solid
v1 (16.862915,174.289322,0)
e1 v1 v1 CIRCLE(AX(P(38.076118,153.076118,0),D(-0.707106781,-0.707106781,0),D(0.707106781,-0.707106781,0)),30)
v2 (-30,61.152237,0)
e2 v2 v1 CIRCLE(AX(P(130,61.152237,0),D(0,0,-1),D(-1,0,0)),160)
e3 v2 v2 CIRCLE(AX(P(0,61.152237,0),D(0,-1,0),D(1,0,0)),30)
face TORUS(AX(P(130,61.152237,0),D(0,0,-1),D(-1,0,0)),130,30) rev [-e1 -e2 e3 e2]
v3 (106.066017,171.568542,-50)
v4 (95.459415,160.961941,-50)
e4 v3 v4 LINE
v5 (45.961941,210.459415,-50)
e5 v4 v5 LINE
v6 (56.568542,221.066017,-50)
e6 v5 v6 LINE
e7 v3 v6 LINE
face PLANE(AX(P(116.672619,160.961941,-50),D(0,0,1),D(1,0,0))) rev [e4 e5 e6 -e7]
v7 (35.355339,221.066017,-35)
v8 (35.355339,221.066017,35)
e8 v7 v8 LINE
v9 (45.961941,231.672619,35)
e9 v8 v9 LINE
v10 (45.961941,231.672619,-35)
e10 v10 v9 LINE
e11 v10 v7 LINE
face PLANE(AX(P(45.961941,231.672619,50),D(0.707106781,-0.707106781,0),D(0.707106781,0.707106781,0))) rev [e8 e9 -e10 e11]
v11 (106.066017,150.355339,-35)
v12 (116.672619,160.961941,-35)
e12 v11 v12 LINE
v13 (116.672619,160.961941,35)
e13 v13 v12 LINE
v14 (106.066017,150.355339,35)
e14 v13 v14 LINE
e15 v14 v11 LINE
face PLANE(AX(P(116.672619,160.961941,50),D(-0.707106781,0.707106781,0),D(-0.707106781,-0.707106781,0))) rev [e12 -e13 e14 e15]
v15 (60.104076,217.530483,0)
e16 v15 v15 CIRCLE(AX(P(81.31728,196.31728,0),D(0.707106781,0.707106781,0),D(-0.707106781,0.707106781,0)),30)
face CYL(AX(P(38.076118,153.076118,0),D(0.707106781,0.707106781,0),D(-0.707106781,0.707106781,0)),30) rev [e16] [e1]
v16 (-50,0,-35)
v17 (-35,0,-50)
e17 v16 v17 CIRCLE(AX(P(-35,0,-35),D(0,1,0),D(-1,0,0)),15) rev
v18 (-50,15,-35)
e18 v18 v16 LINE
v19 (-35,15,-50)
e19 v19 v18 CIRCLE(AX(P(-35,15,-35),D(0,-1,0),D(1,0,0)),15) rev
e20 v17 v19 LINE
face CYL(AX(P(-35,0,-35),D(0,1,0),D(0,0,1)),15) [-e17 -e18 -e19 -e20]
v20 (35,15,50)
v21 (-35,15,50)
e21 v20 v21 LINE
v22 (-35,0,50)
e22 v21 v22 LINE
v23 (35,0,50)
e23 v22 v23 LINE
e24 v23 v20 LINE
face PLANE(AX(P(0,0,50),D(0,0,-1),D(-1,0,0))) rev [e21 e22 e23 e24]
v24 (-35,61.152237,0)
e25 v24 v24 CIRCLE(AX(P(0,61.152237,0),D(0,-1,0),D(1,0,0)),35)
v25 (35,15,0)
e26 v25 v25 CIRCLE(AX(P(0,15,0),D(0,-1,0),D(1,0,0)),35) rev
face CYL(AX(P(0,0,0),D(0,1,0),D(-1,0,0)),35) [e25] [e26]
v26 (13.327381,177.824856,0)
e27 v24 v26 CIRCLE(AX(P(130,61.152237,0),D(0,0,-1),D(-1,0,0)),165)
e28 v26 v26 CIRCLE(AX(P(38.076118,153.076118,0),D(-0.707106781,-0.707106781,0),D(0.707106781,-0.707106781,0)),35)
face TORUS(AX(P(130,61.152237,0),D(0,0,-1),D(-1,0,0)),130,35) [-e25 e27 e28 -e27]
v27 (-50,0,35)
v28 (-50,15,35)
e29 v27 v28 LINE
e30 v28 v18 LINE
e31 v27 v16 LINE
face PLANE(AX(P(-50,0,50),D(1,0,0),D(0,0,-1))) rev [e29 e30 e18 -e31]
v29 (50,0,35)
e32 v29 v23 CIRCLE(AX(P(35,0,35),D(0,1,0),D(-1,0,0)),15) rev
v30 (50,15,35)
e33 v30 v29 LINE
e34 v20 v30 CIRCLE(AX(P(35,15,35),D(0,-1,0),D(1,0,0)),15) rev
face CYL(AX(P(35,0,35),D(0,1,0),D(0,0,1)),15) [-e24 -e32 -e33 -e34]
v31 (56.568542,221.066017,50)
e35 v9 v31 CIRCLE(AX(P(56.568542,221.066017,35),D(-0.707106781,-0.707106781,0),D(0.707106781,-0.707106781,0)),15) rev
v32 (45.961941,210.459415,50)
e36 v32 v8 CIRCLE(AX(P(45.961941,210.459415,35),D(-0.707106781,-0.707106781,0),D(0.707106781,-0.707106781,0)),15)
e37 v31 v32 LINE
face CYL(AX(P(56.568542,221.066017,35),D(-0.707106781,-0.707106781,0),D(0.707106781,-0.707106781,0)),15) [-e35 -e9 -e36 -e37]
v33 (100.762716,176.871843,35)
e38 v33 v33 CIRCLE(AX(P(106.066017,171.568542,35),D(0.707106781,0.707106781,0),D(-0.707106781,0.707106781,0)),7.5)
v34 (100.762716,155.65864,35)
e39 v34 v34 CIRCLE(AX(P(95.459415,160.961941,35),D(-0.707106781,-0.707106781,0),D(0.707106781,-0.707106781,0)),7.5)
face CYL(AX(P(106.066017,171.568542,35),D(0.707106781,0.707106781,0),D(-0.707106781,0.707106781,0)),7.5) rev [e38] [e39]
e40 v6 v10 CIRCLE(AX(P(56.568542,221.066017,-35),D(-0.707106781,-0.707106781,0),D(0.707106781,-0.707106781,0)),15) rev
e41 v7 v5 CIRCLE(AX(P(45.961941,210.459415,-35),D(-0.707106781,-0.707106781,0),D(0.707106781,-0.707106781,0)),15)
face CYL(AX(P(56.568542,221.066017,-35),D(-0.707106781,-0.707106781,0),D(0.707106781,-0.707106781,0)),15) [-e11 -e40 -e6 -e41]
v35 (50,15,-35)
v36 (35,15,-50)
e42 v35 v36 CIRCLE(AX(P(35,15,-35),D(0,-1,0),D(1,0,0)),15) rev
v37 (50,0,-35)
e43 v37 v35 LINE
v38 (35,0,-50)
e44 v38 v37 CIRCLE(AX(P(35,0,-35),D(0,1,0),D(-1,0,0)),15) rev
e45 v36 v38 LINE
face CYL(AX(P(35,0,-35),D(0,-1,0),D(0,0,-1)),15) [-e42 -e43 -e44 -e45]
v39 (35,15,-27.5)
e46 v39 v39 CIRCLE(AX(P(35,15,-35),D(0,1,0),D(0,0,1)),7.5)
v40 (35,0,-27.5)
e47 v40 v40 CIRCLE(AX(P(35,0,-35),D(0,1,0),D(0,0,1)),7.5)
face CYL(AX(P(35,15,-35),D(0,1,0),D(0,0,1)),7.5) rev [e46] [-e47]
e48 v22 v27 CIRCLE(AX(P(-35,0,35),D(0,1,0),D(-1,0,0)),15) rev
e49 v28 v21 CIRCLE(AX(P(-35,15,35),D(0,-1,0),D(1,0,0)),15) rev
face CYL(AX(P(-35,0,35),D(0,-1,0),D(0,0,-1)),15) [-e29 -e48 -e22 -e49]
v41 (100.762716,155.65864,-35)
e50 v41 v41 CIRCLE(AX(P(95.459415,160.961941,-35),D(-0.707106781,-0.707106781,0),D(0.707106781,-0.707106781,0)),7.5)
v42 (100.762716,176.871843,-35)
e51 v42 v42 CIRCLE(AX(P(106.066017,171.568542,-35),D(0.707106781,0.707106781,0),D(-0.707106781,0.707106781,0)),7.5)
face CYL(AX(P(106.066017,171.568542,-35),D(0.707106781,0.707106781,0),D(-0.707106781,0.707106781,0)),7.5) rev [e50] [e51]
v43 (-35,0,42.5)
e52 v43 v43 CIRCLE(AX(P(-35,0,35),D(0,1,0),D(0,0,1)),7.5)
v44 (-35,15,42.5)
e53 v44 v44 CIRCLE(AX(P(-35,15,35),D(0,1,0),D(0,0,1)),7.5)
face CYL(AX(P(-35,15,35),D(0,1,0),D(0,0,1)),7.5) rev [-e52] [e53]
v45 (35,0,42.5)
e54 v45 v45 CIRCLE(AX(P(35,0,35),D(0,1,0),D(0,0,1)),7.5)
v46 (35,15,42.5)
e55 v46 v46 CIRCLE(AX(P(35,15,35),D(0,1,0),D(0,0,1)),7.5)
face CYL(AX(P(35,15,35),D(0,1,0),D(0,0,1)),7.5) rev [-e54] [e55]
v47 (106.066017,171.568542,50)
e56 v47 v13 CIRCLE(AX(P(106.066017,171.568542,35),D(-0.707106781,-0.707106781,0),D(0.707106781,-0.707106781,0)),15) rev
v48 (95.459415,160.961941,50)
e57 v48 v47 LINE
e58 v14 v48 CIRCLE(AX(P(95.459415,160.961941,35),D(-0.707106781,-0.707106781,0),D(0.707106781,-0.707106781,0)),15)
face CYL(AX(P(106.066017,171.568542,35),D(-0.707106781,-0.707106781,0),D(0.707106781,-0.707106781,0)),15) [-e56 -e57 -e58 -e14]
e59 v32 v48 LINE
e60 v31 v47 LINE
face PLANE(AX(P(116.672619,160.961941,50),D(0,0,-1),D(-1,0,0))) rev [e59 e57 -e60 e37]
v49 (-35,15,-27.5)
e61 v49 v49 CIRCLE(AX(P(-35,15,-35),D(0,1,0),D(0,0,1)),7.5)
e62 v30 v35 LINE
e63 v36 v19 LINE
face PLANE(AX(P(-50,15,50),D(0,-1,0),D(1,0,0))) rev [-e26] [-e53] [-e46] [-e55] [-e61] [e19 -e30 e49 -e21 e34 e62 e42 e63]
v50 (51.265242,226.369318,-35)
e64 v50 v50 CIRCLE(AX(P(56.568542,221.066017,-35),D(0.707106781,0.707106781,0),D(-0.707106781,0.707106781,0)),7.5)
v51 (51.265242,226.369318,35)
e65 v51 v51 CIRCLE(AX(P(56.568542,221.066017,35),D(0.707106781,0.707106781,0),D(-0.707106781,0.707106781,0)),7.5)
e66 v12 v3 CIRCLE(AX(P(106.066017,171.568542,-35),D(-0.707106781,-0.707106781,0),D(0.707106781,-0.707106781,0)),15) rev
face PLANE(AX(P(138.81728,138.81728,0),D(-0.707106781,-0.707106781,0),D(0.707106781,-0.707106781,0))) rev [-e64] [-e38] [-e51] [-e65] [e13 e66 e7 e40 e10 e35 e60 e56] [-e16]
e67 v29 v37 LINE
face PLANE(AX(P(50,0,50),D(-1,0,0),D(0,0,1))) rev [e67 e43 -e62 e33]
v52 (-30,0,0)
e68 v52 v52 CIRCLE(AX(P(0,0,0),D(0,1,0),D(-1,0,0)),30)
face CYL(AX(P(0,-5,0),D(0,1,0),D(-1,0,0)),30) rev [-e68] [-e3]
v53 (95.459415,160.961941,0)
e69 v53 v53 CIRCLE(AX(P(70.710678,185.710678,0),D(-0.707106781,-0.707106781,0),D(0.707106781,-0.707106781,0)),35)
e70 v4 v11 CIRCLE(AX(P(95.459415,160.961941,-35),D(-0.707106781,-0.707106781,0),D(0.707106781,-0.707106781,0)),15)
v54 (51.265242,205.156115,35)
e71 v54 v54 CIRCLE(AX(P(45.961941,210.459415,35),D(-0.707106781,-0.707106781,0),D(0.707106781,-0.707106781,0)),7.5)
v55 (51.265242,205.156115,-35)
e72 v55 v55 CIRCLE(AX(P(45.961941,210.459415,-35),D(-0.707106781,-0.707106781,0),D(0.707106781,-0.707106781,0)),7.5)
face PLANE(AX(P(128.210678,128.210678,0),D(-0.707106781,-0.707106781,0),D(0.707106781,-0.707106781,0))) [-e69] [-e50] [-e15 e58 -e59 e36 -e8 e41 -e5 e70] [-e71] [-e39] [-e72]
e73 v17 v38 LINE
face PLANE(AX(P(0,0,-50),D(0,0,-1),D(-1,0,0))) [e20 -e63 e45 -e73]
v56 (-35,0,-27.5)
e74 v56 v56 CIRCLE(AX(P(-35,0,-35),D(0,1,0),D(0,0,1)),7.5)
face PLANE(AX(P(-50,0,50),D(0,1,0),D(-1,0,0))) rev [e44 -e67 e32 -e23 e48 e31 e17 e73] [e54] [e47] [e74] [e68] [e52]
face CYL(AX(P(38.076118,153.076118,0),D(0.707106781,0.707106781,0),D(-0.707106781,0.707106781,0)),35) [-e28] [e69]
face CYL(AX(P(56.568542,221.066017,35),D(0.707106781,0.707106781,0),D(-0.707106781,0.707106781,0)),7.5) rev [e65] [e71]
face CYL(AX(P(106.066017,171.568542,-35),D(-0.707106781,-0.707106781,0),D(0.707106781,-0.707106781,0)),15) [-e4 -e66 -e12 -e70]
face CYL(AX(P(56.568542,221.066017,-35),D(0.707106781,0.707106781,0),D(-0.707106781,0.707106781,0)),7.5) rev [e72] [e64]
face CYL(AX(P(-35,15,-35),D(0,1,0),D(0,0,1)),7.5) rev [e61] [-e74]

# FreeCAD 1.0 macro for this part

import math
import FreeCAD as App
import Part
import Sketcher

V = App.Vector
Q = App.Units.Quantity


def edges_at(feature, points):
    """Names of the edges that pass closest to the given points."""
    edges = feature.Shape.Edges
    near = lambda p: min(range(len(edges)), key=lambda i: edges[i].distToShape(Part.Vertex(*p))[0])
    return sorted({f"Edge{near(p) + 1}" for p in points})


def add_polygon(sketch, points):
    """Adds a closed chain of lines whose ends are joined by coincident constraints."""
    first, n = sketch.GeometryCount, len(points)
    for a, b in zip(points, points[1:] + points[:1]):
        sketch.addGeometry(Part.LineSegment(App.Vector(*a, 0), App.Vector(*b, 0)), False)
    for i in range(n):
        sketch.addConstraint(Sketcher.Constraint("Coincident", first + i, 2, first + (i + 1) % n, 1))

doc = App.newDocument("Part")
body = doc.addObject("PartDesign::Body", "Body")

# Sketch on XY plane
sketch1 = body.newObject("Sketcher::SketchObject", "Sketch")
sketch1.AttachmentSupport = (doc.getObject("XY_Plane"), [""])
sketch1.MapMode = "FlatFace"
add_polygon(sketch1, [(-50, 15), (-50, 0), (50, 0), (50, 15)])  # lines 0-3
sketch1.addConstraint(Sketcher.Constraint("Vertical", 0))
sketch1.addConstraint(Sketcher.Constraint("Horizontal", 1))
sketch1.addConstraint(Sketcher.Constraint("Vertical", 2))
sketch1.addConstraint(Sketcher.Constraint("Horizontal", 3))
sketch1.addConstraint(Sketcher.Constraint("Symmetric", 0, 2, 1, 2, -1, 1))
sketch1.addConstraint(Sketcher.Constraint("DistanceX", 1, 1, 1, 2, 100.0))
sketch1.addConstraint(Sketcher.Constraint("DistanceY", 0, 2, 0, 1, 15.0))
pad1 = body.newObject("PartDesign::Pad", "Pad")
pad1.Profile = sketch1
pad1.Length = 100
pad1.Midplane = True

# Sketch on XZ plane
sketch2 = body.newObject("Sketcher::SketchObject", "Sketch001")
sketch2.AttachmentSupport = (doc.getObject("XZ_Plane"), [""])
sketch2.MapMode = "FlatFace"
sketch2.AttachmentOffset = App.Placement(V(0, 0, -15), App.Rotation())
sketch2.addGeometry(Part.Circle(V(0, 0, 0), V(0, 0, 1), 30), False)
sketch2.addConstraint(Sketcher.Constraint("Coincident", 0, 3, -1, 1))
sketch2.addConstraint(Sketcher.Constraint("Diameter", 0, 60.0))
pocket1 = body.newObject("PartDesign::Pocket", "Pocket")
pocket1.Profile = sketch2
pocket1.Length = 15
pocket1.Reversed = True

# Sketch on XZ plane
sketch3 = body.newObject("Sketcher::SketchObject", "Sketch002")
sketch3.AttachmentSupport = (doc.getObject("XZ_Plane"), [""])
sketch3.MapMode = "FlatFace"
sketch3.addGeometry(Part.Circle(V(0, 0, 0), V(0, 0, 1), 35), False)
sketch3.addConstraint(Sketcher.Constraint("Coincident", 0, 3, -1, 1))
sketch3.addConstraint(Sketcher.Constraint("Diameter", 0, 70.0))

# Sketch on XY plane
sketch4 = body.newObject("Sketcher::SketchObject", "Sketch003")
sketch4.AttachmentSupport = (doc.getObject("XY_Plane"), [""])
sketch4.MapMode = "FlatFace"
sketch4.addGeometry(Part.LineSegment(V(0, 0, 0), V(0, 61.152237, 0)), False)
sketch4.addGeometry(Part.ArcOfCircle(Part.Circle(V(130, 61.152237, 0), V(0, 0, 1), 130), math.radians(135), math.radians(180)), False)
sketch4.addGeometry(Part.LineSegment(V(38.076118, 153.076118, 0), V(70.710678, 185.710678, 0)), False)
sketch4.addConstraint(Sketcher.Constraint("Tangent", 0, 2, 1, 2))
sketch4.addConstraint(Sketcher.Constraint("Tangent", 1, 1, 2, 1))
sketch4.addConstraint(Sketcher.Constraint("Vertical", 0))
sketch4.addConstraint(Sketcher.Constraint("Coincident", 0, 1, -1, 1))
sketch4.addConstraint(Sketcher.Constraint("Radius", 1, 130.0))
sketch4.addConstraint(Sketcher.Constraint("Angle", 2, Q("45 deg")))
sketch4.addConstraint(Sketcher.Constraint("DistanceY", 0, 1, 0, 2, 61.152237))
sketch4.addConstraint(Sketcher.Constraint("DistanceX", -1, 1, 2, 2, 70.710678))
doc.recompute()

additivepipe = body.newObject("PartDesign::AdditivePipe", "AdditivePipe")
additivepipe.Profile = sketch3
additivepipe.Spine = (sketch4, ["Edge1", "Edge2", "Edge3"])

# Sketch on XZ plane
sketch5 = body.newObject("Sketcher::SketchObject", "Sketch004")
sketch5.AttachmentSupport = (doc.getObject("XZ_Plane"), [""])
sketch5.MapMode = "FlatFace"
sketch5.addGeometry(Part.Circle(V(0, 0, 0), V(0, 0, 1), 30), False)
sketch5.addConstraint(Sketcher.Constraint("Coincident", 0, 3, -1, 1))
sketch5.addConstraint(Sketcher.Constraint("Diameter", 0, 60.0))

# Sketch on XY plane
sketch6 = body.newObject("Sketcher::SketchObject", "Sketch005")
sketch6.AttachmentSupport = (doc.getObject("XY_Plane"), [""])
sketch6.MapMode = "FlatFace"
sketch6.addGeometry(Part.LineSegment(V(0, 0, 0), V(0, 61.152237, 0)), False)
sketch6.addGeometry(Part.ArcOfCircle(Part.Circle(V(130, 61.152237, 0), V(0, 0, 1), 130), math.radians(135), math.radians(180)), False)
sketch6.addGeometry(Part.LineSegment(V(38.076118, 153.076118, 0), V(70.710678, 185.710678, 0)), False)
sketch6.addConstraint(Sketcher.Constraint("Tangent", 0, 2, 1, 2))
sketch6.addConstraint(Sketcher.Constraint("Tangent", 1, 1, 2, 1))
sketch6.addConstraint(Sketcher.Constraint("Vertical", 0))
sketch6.addConstraint(Sketcher.Constraint("Coincident", 0, 1, -1, 1))
sketch6.addConstraint(Sketcher.Constraint("Radius", 1, 130.0))
sketch6.addConstraint(Sketcher.Constraint("Angle", 2, Q("45 deg")))
sketch6.addConstraint(Sketcher.Constraint("DistanceY", 0, 1, 0, 2, 61.152237))
sketch6.addConstraint(Sketcher.Constraint("DistanceX", -1, 1, 2, 2, 70.710678))
doc.recompute()

subtractivepipe = body.newObject("PartDesign::SubtractivePipe", "SubtractivePipe")
subtractivepipe.Profile = sketch5
subtractivepipe.Spine = (sketch6, ["Edge1", "Edge2", "Edge3"])
doc.recompute()

fillet = body.newObject("PartDesign::Fillet", "Fillet")
fillet.Base = (subtractivepipe, edges_at(subtractivepipe, [
    (50, 7.5, 50),
    (-50, 7.5, 50),
    (50, 7.5, -50),
    (-50, 7.5, -50),
]))
fillet.Radius = 15

# Sketch on XZ plane
sketch7 = body.newObject("Sketcher::SketchObject", "Sketch006")
sketch7.AttachmentSupport = (doc.getObject("XZ_Plane"), [""])
sketch7.MapMode = "FlatFace"
sketch7.AttachmentOffset = App.Placement(V(0, 0, -15), App.Rotation())
sketch7.addGeometry(Part.Circle(V(-35, -35, 0), V(0, 0, 1), 7.5), False)
sketch7.addGeometry(Part.Circle(V(-35, 35, 0), V(0, 0, 1), 7.5), False)
sketch7.addGeometry(Part.Circle(V(35, -35, 0), V(0, 0, 1), 7.5), False)
sketch7.addGeometry(Part.Circle(V(35, 35, 0), V(0, 0, 1), 7.5), False)
sketch7.addConstraint(Sketcher.Constraint("Equal", 0, 1))
sketch7.addConstraint(Sketcher.Constraint("Equal", 1, 2))
sketch7.addConstraint(Sketcher.Constraint("Equal", 2, 3))
sketch7.addConstraint(Sketcher.Constraint("Symmetric", 1, 3, 2, 3, -1, 1))
sketch7.addConstraint(Sketcher.Constraint("Symmetric", 0, 3, 3, 3, -1, 1))
sketch7.addConstraint(Sketcher.Constraint("Symmetric", 0, 3, 2, 3, -2))
sketch7.addConstraint(Sketcher.Constraint("Diameter", 0, 15.0))
sketch7.addConstraint(Sketcher.Constraint("DistanceX", 0, 3, -1, 1, 35.0))
sketch7.addConstraint(Sketcher.Constraint("DistanceY", 0, 3, -1, 1, 35.0))
doc.recompute()
hole = body.newObject("PartDesign::Hole", "Hole")
hole.Profile = sketch7
hole.ThreadType = "None"
hole.Diameter = 15
hole.DepthType = "Dimension"
hole.Depth = 15
hole.DrillPoint = "Flat"
hole.Reversed = True

# Sketch on an angled plane
sketch8 = body.newObject("Sketcher::SketchObject", "Sketch007")
sketch8.Placement = App.Placement(V(128.210678, 128.210678, 0), App.Rotation(V(0, 0, -1), V(-0.707106781, 0.707106781, 0), V(0.707106781, 0.707106781, 0), "ZXY"))
add_polygon(sketch8, [(-50, 131.31728), (-50, 31.31728), (50, 31.31728), (50, 131.31728)])  # lines 0-3
sketch8.addConstraint(Sketcher.Constraint("Vertical", 0))
sketch8.addConstraint(Sketcher.Constraint("Horizontal", 1))
sketch8.addConstraint(Sketcher.Constraint("Vertical", 2))
sketch8.addConstraint(Sketcher.Constraint("Horizontal", 3))
sketch8.addConstraint(Sketcher.Constraint("Equal", 3, 0))
sketch8.addConstraint(Sketcher.Constraint("DistanceX", 1, 1, 1, 2, 100.0))
sketch8.addConstraint(Sketcher.Constraint("DistanceX", 0, 2, -1, 1, 50.0))
sketch8.addConstraint(Sketcher.Constraint("DistanceY", -1, 1, 0, 2, 31.31728))
pad2 = body.newObject("PartDesign::Pad", "Pad001")
pad2.Profile = sketch8
pad2.Length = 15
doc.recompute()

fillet2 = body.newObject("PartDesign::Fillet", "Fillet001")
fillet2.Base = (pad2, edges_at(pad2, [
    (40.659, 226.369, 50),
    (111.369, 155.659, 50),
    (111.369, 155.659, -50),
    (40.659, 226.369, -50),
]))
fillet2.Radius = 15

# Sketch on an angled plane
sketch9 = body.newObject("Sketcher::SketchObject", "Sketch008")
sketch9.Placement = App.Placement(V(138.81728, 138.81728, 0), App.Rotation(V(0, 0, -1), V(-0.707106781, 0.707106781, 0), V(0.707106781, 0.707106781, 0), "ZXY"))
sketch9.addGeometry(Part.Circle(V(0, 81.31728, 0), V(0, 0, 1), 30), False)
sketch9.addConstraint(Sketcher.Constraint("PointOnObject", 0, 3, -2))
sketch9.addConstraint(Sketcher.Constraint("Diameter", 0, 60.0))
sketch9.addConstraint(Sketcher.Constraint("DistanceY", -1, 1, 0, 3, 81.31728))
pocket2 = body.newObject("PartDesign::Pocket", "Pocket001")
pocket2.Profile = sketch9
pocket2.Length = 15

# Sketch on an angled plane
sketch10 = body.newObject("Sketcher::SketchObject", "Sketch009")
sketch10.Placement = App.Placement(V(138.81728, 138.81728, 0), App.Rotation(V(-0.707106781, 0.707106781, 0), V(0, 0, 0.999999999), V(0.707106781, 0.707106781, 0), "ZXY"))
sketch10.addGeometry(Part.Circle(V(116.31728, 35, 0), V(0, 0, 1), 7.5), False)
sketch10.addConstraint(Sketcher.Constraint("Diameter", 0, 15.0))
sketch10.addConstraint(Sketcher.Constraint("DistanceY", -1, 1, 0, 3, 35.0))
sketch10.addConstraint(Sketcher.Constraint("DistanceX", -1, 1, 0, 3, 116.31728))
doc.recompute()
hole2 = body.newObject("PartDesign::Hole", "Hole001")
hole2.Profile = sketch10
hole2.ThreadType = "None"
hole2.Diameter = 15
hole2.DepthType = "Dimension"
hole2.Depth = 15
hole2.DrillPoint = "Flat"

# Sketch on an angled plane
sketch11 = body.newObject("Sketcher::SketchObject", "Sketch010")
sketch11.Placement = App.Placement(V(138.81728, 138.81728, 0), App.Rotation(V(0.707106781, -0.707106781, 0), V(0, 0, -0.999999999), V(0.707106781, 0.707106781, 0), "ZXY"))
sketch11.addGeometry(Part.Circle(V(-46.31728, -35, 0), V(0, 0, 1), 7.5), False)
sketch11.addGeometry(Part.Circle(V(-46.31728, 35, 0), V(0, 0, 1), 7.5), False)
sketch11.addGeometry(Part.Circle(V(-116.31728, 35, 0), V(0, 0, 1), 7.5), False)
sketch11.addConstraint(Sketcher.Constraint("Equal", 0, 1))
sketch11.addConstraint(Sketcher.Constraint("Equal", 1, 2))
sketch11.addConstraint(Sketcher.Constraint("Symmetric", 0, 3, 1, 3, -1))
sketch11.addConstraint(Sketcher.Constraint("Horizontal", 1, 3, 2, 3))
sketch11.addConstraint(Sketcher.Constraint("Diameter", 0, 15.0))
sketch11.addConstraint(Sketcher.Constraint("DistanceY", 0, 3, -1, 1, 35.0))
sketch11.addConstraint(Sketcher.Constraint("DistanceX", 2, 3, 1, 3, 70.0))
sketch11.addConstraint(Sketcher.Constraint("DistanceX", 0, 3, -1, 1, 46.31728))
doc.recompute()
hole3 = body.newObject("PartDesign::Hole", "Hole002")
hole3.Profile = sketch11
hole3.ThreadType = "None"
hole3.Diameter = 15
hole3.DepthType = "Dimension"
hole3.Depth = 15
hole3.DrillPoint = "Flat"

doc.recompute()
